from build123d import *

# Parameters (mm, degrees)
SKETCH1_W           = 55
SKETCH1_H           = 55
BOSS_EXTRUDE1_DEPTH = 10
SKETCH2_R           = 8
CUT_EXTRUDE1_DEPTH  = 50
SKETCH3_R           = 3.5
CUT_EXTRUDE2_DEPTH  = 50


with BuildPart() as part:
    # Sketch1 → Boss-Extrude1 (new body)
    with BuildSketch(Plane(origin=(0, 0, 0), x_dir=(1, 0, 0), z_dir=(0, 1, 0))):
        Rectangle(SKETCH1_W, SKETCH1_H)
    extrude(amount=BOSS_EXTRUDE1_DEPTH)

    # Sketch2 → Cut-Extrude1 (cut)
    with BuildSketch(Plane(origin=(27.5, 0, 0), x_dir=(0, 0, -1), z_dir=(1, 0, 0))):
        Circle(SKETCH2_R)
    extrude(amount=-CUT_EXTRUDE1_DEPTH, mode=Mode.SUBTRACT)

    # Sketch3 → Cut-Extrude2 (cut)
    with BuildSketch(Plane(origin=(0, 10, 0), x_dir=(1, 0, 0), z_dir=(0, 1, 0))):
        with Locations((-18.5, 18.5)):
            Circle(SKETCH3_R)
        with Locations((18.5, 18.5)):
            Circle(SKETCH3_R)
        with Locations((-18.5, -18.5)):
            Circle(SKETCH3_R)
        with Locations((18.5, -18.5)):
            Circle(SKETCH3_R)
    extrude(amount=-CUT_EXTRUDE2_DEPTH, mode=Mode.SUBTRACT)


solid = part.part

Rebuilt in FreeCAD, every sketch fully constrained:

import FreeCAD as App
import Part
import Sketcher
Q = App.Units.Quantity

doc = App.newDocument("Part")
body = doc.addObject("PartDesign::Body", "Body")

# Sketch on XZ plane
sketch1 = doc.addObject("Sketcher::SketchObject", "Sketch")
body.addObject(sketch1)
sketch1.AttachmentSupport = (doc.XZ_Plane, [""])
sketch1.MapMode = "FlatFace"
sketch1.addGeometry([
    Part.LineSegment(App.Vector(-27.5, -27.5, 0), App.Vector(-27.5, 27.5, 0)),
    Part.LineSegment(App.Vector(-27.5, 27.5, 0), App.Vector(27.5, 27.5, 0)),
    Part.LineSegment(App.Vector(27.5, 27.5, 0), App.Vector(27.5, -27.5, 0)),
    Part.LineSegment(App.Vector(27.5, -27.5, 0), App.Vector(-27.5, -27.5, 0)),
], False)
sketch1.addConstraint([
    Sketcher.Constraint("Coincident", 0, 2, 1, 1),
    Sketcher.Constraint("Coincident", 1, 2, 2, 1),
    Sketcher.Constraint("Coincident", 2, 2, 3, 1),
    Sketcher.Constraint("Coincident", 3, 2, 0, 1),
    Sketcher.Constraint("Vertical", 0),
    Sketcher.Constraint("Horizontal", 1),
    Sketcher.Constraint("Vertical", 2),
    Sketcher.Constraint("Horizontal", 3),
    Sketcher.Constraint("Symmetric", 0, 2, 2, 2, -1, 1),
    Sketcher.Constraint("Equal", 3, 0),
    Sketcher.Constraint("DistanceX", 1, 1, 1, 2, Q("55 mm")),
])
pad1 = doc.addObject("PartDesign::Pad", "Pad")
body.addObject(pad1)
pad1.Profile = sketch1
pad1.Length = 10
pad1.Reversed = True

# Sketch on YZ plane
sketch2 = doc.addObject("Sketcher::SketchObject", "Sketch001")
body.addObject(sketch2)
sketch2.AttachmentSupport = (doc.YZ_Plane, [""])
sketch2.MapMode = "FlatFace"
sketch2.AttachmentOffset = App.Placement(App.Vector(0, 0, 27.5), App.Rotation())
sketch2.addGeometry(Part.Circle(App.Vector(0, 0, 0), App.Vector(0, 0, 1), 8), False)
sketch2.addConstraint([
    Sketcher.Constraint("Coincident", 0, 3, -1, 1),
    Sketcher.Constraint("Diameter", 0, Q("16 mm")),
])
pocket1 = doc.addObject("PartDesign::Pocket", "Pocket")
body.addObject(pocket1)
pocket1.Profile = sketch2
pocket1.Length = 50

# Sketch on XZ plane
sketch3 = doc.addObject("Sketcher::SketchObject", "Sketch002")
body.addObject(sketch3)
sketch3.AttachmentSupport = (doc.XZ_Plane, [""])
sketch3.MapMode = "FlatFace"
sketch3.AttachmentOffset = App.Placement(App.Vector(0, 0, -10), App.Rotation())
sketch3.addGeometry([
    Part.Circle(App.Vector(-18.5, -18.5, 0), App.Vector(0, 0, 1), 3.5),
    Part.Circle(App.Vector(18.5, -18.5, 0), App.Vector(0, 0, 1), 3.5),
    Part.Circle(App.Vector(-18.5, 18.5, 0), App.Vector(0, 0, 1), 3.5),
    Part.Circle(App.Vector(18.5, 18.5, 0), App.Vector(0, 0, 1), 3.5),
], False)
sketch3.addConstraint([
    Sketcher.Constraint("Equal", 0, 1),
    Sketcher.Constraint("Equal", 1, 2),
    Sketcher.Constraint("Equal", 2, 3),
    Sketcher.Constraint("Symmetric", 1, 3, 2, 3, -1, 1),
    Sketcher.Constraint("Symmetric", 0, 3, 3, 3, -1, 1),
    Sketcher.Constraint("Symmetric", 0, 3, 1, 3, -2),
    Sketcher.Constraint("Diameter", 0, Q("7 mm")),
    Sketcher.Constraint("DistanceX", 0, 3, 1, 3, Q("37 mm")),
    Sketcher.Constraint("DistanceY", 0, 3, 2, 3, Q("37 mm")),
])
pocket2 = doc.addObject("PartDesign::Pocket", "Pocket001")
body.addObject(pocket2)
pocket2.Profile = sketch3
pocket2.Length = 50
pocket2.Reversed = True

doc.recompute()
